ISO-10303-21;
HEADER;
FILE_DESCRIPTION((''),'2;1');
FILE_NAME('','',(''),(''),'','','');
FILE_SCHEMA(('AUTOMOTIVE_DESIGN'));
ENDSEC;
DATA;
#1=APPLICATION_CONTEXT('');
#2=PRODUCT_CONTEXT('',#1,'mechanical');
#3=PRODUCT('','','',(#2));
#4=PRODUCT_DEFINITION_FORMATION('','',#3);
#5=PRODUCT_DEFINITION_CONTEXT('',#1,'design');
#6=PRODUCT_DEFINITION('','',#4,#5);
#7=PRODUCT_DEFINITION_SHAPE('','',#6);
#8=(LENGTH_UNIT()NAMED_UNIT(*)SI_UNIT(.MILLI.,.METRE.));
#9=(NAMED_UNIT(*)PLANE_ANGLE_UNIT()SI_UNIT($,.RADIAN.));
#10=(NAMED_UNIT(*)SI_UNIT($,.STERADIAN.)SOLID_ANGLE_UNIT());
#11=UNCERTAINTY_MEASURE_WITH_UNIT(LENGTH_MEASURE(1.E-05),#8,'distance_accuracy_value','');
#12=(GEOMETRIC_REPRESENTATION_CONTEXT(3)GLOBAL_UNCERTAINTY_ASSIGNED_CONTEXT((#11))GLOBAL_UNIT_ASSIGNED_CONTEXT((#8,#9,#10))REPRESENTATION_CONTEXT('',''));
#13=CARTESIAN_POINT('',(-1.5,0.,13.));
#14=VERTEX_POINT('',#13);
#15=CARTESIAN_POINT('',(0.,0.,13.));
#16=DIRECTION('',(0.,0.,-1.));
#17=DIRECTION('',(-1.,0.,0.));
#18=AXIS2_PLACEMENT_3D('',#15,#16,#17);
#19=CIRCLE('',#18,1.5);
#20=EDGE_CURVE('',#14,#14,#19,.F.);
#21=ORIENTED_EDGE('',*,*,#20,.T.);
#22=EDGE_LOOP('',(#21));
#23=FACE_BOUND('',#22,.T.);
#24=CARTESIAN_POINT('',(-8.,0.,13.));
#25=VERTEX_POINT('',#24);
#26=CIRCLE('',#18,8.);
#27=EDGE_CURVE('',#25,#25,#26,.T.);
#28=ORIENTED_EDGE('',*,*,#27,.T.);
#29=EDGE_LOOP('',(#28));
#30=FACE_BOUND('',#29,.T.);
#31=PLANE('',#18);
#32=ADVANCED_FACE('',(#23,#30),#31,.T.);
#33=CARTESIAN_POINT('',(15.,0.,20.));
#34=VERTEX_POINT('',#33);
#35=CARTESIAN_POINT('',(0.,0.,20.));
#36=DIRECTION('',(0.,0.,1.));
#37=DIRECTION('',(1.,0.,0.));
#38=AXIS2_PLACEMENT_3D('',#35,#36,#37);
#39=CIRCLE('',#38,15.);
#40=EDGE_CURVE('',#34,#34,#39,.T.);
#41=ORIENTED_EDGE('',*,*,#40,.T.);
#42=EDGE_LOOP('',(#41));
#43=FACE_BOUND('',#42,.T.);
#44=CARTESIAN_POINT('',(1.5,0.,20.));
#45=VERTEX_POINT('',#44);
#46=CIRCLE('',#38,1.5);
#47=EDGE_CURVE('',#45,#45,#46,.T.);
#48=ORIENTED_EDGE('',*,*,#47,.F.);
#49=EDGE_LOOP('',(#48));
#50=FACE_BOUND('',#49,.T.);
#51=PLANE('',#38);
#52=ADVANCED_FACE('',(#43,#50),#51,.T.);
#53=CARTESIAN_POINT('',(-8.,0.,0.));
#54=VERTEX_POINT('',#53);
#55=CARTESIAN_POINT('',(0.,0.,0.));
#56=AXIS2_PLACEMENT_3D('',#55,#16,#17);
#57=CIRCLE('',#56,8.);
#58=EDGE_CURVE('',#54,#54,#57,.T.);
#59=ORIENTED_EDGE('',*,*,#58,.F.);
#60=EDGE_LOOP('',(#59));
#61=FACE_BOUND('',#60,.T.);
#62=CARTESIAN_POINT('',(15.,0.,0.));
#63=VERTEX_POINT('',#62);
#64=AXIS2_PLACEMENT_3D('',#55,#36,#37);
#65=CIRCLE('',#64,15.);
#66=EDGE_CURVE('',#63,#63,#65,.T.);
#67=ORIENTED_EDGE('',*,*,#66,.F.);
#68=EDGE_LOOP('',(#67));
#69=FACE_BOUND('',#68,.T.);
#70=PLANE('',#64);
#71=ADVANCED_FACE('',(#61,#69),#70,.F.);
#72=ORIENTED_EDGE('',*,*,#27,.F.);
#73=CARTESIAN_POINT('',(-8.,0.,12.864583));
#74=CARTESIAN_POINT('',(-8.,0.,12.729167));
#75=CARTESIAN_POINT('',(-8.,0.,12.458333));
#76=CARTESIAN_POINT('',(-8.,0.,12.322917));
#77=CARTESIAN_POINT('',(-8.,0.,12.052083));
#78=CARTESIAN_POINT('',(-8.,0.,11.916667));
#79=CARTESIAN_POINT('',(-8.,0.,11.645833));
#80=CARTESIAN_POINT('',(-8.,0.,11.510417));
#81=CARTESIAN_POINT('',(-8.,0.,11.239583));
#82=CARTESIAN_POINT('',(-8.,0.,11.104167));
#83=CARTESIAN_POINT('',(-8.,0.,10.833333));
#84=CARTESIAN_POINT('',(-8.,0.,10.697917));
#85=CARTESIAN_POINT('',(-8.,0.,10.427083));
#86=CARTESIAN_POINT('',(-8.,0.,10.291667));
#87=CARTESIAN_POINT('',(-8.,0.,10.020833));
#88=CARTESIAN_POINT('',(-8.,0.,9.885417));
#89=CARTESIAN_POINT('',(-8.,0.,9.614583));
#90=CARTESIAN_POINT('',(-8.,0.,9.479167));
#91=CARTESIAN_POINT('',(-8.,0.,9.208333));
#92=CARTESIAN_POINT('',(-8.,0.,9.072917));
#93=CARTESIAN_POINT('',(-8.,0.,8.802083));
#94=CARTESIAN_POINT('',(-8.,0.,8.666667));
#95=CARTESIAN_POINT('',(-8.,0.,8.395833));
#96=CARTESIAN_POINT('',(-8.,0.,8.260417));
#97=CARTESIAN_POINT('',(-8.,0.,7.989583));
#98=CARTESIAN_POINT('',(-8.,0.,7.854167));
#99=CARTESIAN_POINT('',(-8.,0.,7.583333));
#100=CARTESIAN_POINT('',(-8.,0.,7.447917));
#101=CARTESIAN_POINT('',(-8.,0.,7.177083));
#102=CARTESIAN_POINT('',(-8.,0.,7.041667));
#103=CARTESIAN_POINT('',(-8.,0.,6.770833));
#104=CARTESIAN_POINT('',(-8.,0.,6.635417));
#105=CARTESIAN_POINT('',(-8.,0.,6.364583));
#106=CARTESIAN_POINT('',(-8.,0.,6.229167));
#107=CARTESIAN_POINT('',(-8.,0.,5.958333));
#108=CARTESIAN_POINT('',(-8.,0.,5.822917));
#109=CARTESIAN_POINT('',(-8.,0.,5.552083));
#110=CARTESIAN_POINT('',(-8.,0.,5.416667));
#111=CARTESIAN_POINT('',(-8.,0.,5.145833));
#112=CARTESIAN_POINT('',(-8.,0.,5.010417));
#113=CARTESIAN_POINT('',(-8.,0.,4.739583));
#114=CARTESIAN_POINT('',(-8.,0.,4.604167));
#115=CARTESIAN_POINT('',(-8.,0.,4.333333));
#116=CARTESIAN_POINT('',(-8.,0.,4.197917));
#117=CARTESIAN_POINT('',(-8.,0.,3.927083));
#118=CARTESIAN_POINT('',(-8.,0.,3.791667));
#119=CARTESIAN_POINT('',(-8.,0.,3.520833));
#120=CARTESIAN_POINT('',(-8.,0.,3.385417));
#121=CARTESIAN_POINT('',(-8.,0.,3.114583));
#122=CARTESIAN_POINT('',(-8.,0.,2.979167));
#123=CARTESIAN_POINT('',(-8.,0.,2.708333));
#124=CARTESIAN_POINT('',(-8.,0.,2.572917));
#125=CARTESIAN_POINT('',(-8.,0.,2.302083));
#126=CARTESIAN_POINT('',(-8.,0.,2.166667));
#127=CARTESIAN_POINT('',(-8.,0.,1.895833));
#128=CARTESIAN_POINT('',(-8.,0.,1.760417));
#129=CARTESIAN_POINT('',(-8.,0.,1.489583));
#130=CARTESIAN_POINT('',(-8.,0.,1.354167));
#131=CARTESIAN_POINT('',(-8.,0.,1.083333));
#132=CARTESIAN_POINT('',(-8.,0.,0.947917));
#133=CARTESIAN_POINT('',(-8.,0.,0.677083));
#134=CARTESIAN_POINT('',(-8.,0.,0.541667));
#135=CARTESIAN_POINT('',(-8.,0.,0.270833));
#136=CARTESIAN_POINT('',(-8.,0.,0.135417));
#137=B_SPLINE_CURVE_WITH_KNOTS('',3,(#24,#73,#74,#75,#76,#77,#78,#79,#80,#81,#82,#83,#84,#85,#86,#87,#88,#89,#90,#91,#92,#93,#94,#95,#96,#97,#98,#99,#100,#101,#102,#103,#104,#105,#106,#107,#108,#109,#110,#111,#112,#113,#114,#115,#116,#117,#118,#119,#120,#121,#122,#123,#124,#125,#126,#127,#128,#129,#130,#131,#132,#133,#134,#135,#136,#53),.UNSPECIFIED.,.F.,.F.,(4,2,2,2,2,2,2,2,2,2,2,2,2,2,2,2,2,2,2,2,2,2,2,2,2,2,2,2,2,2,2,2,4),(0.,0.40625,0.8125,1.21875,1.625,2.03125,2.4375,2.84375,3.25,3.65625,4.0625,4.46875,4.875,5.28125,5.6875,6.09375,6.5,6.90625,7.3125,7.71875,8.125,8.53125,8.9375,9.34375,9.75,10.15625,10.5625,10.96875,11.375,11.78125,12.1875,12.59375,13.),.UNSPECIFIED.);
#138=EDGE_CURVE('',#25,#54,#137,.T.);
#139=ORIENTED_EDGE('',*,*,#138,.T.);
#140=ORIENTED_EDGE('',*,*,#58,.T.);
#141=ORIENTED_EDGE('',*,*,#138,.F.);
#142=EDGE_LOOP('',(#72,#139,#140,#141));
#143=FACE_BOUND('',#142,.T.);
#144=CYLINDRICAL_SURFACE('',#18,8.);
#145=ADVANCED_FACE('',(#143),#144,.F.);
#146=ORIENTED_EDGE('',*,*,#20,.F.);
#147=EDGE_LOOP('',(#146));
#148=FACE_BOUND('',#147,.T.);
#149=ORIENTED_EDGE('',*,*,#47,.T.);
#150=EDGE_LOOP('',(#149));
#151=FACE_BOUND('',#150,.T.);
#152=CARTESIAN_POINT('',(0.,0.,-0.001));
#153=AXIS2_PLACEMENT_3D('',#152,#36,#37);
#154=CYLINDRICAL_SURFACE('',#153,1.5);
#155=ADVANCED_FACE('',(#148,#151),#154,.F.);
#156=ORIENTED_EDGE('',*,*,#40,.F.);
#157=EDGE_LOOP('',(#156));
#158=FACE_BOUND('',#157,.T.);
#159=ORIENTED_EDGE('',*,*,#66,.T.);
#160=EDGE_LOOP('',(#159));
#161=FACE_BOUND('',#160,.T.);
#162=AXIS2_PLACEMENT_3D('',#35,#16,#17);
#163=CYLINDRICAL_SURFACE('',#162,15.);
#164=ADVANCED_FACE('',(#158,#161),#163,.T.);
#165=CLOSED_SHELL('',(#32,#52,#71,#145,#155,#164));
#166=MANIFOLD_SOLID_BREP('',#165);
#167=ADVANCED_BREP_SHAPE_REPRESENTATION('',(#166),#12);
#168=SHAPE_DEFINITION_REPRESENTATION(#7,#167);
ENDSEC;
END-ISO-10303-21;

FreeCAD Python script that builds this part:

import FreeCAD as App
import Part
import Sketcher
from FreeCAD import Vector

doc = App.newDocument("Part")
body = doc.addObject("PartDesign::Body", "Body")

# Sketch on XY plane
sketch1 = body.newObject("Sketcher::SketchObject", "Sketch")
sketch1.AttachmentSupport = (doc.getObject("XY_Plane"), [""])
sketch1.MapMode = "FlatFace"
sketch1.addGeometry(Part.Circle(Vector(0, 0, 0), Vector(0, 0, 1), 15), False)
sketch1.addConstraint(Sketcher.Constraint("Coincident", 0, 3, -1, 1))
sketch1.addConstraint(Sketcher.Constraint("Diameter", 0, 30.0))
pad1 = body.newObject("PartDesign::Pad", "Pad")
pad1.Profile = sketch1
pad1.Length = 20

# Sketch on XY plane
sketch2 = body.newObject("Sketcher::SketchObject", "Sketch001")
sketch2.AttachmentSupport = (doc.getObject("XY_Plane"), [""])
sketch2.MapMode = "FlatFace"
sketch2.addGeometry(Part.Circle(Vector(0, 0, 0), Vector(0, 0, 1), 8), False)
sketch2.addConstraint(Sketcher.Constraint("Coincident", 0, 3, -1, 1))
sketch2.addConstraint(Sketcher.Constraint("Diameter", 0, 16.0))
pocket1 = body.newObject("PartDesign::Pocket", "Pocket")
pocket1.Profile = sketch2
pocket1.Length = 13
pocket1.Reversed = True

# Sketch on XY plane
sketch3 = body.newObject("Sketcher::SketchObject", "Sketch002")
sketch3.AttachmentSupport = (doc.getObject("XY_Plane"), [""])
sketch3.MapMode = "FlatFace"
sketch3.AttachmentOffset = App.Placement(Vector(0, 0, 20), App.Rotation())
sketch3.addGeometry(Part.Circle(Vector(0, 0, 0), Vector(0, 0, 1), 1.5), False)
sketch3.addConstraint(Sketcher.Constraint("Coincident", 0, 3, -1, 1))
sketch3.addConstraint(Sketcher.Constraint("Diameter", 0, 3.0))
pocket2 = body.newObject("PartDesign::Pocket", "Pocket001")
pocket2.Profile = sketch3
pocket2.Type = "UpToFirst"

doc.recompute()
